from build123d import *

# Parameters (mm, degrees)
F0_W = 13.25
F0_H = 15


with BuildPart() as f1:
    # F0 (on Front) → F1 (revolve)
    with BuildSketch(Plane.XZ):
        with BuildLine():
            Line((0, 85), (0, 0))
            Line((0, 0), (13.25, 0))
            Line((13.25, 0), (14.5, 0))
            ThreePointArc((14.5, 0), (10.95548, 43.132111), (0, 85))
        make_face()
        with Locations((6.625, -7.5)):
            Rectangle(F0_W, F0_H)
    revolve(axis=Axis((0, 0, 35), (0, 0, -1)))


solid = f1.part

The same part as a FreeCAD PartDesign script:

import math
import FreeCAD as App
import Part
import Sketcher

doc = App.newDocument("Part")
body = doc.addObject("PartDesign::Body", "Body")

# Sketch on XZ plane
sketch1 = body.newObject("Sketcher::SketchObject", "Sketch")
sketch1.AttachmentSupport = (doc.getObject("XZ_Plane"), [""])
sketch1.MapMode = "FlatFace"
sketch1.addGeometry([
    Part.LineSegment(App.Vector(0, 85, 0), App.Vector(0, -15, 0)),  # 0
    Part.LineSegment(App.Vector(0, -15, 0), App.Vector(13.25, -15, 0)),  # 1
    Part.LineSegment(App.Vector(13.25, -15, 0), App.Vector(13.25, 0, 0)),  # 2
    Part.LineSegment(App.Vector(13.25, 0, 0), App.Vector(14.5, 0, 0)),  # 3
    Part.ArcOfCircle(Part.Circle(App.Vector(-234.624122, 1.23912, 0), App.Vector(0, 0, 1), 249.127203), math.radians(-0.284982), math.radians(19.646579)),  # 4
], False)
sketch1.addConstraint([
    Sketcher.Constraint("Coincident", 0, 2, 1, 1),
    Sketcher.Constraint("Coincident", 1, 2, 2, 1),
    Sketcher.Constraint("Coincident", 2, 2, 3, 1),
    Sketcher.Constraint("Coincident", 3, 2, 4, 1),
    Sketcher.Constraint("Coincident", 4, 2, 0, 1),
    Sketcher.Constraint("Vertical", 0),
    Sketcher.Constraint("Horizontal", 1),
    Sketcher.Constraint("Vertical", 2),
    Sketcher.Constraint("Horizontal", 3),
    Sketcher.Constraint("PointOnObject", 0, 2, -2),
    Sketcher.Constraint("PointOnObject", 2, 2, -1),
    Sketcher.Constraint("DistanceY", 0, 2, 0, 1, 100.0),
    Sketcher.Constraint("DistanceY", 2, 1, 2, 2, 15.0),
    Sketcher.Constraint("DistanceX", 1, 1, 1, 2, 13.25),
    Sketcher.Constraint("DistanceX", 3, 1, 3, 2, 1.25),
    Sketcher.Constraint("Radius", 4, 249.127203),
])
revolution = body.newObject("PartDesign::Revolution", "Revolution")
revolution.Profile = sketch1
revolution.ReferenceAxis = (sketch1, ["V_Axis"])
revolution.Angle = 360

doc.recompute()
